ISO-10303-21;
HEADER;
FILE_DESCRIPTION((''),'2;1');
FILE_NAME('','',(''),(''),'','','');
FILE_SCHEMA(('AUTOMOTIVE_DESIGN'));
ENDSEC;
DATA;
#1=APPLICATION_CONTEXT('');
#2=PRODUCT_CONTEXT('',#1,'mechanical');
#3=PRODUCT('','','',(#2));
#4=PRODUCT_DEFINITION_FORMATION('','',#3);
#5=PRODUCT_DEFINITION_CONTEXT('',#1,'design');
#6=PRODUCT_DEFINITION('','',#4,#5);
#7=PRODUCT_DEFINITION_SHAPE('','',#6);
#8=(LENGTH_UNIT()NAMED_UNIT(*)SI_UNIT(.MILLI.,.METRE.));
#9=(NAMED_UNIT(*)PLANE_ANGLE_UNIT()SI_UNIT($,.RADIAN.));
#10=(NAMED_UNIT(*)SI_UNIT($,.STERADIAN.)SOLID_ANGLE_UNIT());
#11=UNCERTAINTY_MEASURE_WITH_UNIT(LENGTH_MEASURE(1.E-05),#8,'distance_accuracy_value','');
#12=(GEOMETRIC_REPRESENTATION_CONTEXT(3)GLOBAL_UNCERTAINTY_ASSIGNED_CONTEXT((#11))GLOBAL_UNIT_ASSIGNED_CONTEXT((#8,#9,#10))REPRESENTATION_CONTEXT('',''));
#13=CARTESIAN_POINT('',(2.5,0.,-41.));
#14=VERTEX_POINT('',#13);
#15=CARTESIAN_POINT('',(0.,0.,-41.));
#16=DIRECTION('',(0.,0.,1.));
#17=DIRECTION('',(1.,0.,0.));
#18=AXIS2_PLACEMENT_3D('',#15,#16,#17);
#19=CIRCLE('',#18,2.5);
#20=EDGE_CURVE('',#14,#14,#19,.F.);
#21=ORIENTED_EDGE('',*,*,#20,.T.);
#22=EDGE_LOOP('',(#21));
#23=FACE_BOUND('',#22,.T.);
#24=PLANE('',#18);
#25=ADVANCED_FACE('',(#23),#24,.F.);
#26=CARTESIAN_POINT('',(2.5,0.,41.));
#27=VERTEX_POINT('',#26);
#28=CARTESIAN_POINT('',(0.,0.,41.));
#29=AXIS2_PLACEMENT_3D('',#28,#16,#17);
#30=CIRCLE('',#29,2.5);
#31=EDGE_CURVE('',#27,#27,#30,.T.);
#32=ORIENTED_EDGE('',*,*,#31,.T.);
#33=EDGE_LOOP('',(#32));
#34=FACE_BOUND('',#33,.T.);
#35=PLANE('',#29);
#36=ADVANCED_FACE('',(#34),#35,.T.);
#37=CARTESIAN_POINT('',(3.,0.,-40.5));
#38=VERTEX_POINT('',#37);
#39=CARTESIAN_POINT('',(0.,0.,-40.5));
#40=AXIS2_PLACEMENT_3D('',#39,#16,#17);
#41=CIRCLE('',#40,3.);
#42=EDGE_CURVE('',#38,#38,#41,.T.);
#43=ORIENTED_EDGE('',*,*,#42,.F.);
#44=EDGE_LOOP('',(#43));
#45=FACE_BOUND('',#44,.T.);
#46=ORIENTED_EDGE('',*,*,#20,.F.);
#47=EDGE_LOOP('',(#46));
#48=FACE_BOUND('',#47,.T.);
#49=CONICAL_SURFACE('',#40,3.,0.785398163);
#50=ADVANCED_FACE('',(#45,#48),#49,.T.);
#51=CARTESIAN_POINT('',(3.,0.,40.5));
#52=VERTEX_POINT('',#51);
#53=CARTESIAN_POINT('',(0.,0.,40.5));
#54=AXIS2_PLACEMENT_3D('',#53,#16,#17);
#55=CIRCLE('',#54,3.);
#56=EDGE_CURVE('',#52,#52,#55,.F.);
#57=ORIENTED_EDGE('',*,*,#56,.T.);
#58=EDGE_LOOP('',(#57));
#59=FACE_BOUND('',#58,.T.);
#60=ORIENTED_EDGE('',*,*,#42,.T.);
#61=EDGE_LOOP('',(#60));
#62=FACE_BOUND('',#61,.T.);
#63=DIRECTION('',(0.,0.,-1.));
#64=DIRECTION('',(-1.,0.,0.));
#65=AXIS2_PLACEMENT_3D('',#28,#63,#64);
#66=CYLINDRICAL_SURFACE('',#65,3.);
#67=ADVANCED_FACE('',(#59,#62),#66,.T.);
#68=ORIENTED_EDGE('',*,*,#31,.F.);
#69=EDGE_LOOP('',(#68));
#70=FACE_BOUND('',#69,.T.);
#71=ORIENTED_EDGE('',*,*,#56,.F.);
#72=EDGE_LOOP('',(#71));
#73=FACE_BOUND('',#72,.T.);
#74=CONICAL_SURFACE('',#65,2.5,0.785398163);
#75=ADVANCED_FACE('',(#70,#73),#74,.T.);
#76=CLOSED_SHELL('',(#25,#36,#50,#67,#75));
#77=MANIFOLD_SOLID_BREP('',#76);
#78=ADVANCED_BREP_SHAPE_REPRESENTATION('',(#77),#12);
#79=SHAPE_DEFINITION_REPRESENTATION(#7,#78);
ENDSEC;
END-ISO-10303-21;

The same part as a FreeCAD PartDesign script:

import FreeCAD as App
import Part
import Sketcher
from FreeCAD import Vector
Q = App.Units.Quantity


def edges_at(feature, points):
    """Names of the edges that pass closest to the given points."""
    edges = feature.Shape.Edges
    near = lambda p: min(range(len(edges)), key=lambda i: edges[i].distToShape(Part.Vertex(*p))[0])
    return sorted({f"Edge{near(p) + 1}" for p in points})

doc = App.newDocument("Part")
body = doc.addObject("PartDesign::Body", "Body")

sketch1 = body.newObject("Sketcher::SketchObject", "Sketch")
sketch1.AttachmentSupport = (doc.getObject("XY_Plane"), [""])
sketch1.MapMode = "FlatFace"
sketch1.addGeometry(Part.Circle(Vector(0, 0, 0), Vector(0, 0, 1), 3), False)
sketch1.addConstraint(Sketcher.Constraint("Coincident", 0, 3, -1, 1))
sketch1.addConstraint(Sketcher.Constraint("Diameter", 0, Q("6 mm")))
pad1 = body.newObject("PartDesign::Pad", "Pad")
pad1.Profile = sketch1
pad1.Length = 82
pad1.Midplane = True
doc.recompute()

chamfer = body.newObject("PartDesign::Chamfer", "Chamfer")
chamfer.Base = (pad1, edges_at(pad1, [(-3, 0, -41), (-3, 0, 41)]))
chamfer.Size = 0.5

doc.recompute()
